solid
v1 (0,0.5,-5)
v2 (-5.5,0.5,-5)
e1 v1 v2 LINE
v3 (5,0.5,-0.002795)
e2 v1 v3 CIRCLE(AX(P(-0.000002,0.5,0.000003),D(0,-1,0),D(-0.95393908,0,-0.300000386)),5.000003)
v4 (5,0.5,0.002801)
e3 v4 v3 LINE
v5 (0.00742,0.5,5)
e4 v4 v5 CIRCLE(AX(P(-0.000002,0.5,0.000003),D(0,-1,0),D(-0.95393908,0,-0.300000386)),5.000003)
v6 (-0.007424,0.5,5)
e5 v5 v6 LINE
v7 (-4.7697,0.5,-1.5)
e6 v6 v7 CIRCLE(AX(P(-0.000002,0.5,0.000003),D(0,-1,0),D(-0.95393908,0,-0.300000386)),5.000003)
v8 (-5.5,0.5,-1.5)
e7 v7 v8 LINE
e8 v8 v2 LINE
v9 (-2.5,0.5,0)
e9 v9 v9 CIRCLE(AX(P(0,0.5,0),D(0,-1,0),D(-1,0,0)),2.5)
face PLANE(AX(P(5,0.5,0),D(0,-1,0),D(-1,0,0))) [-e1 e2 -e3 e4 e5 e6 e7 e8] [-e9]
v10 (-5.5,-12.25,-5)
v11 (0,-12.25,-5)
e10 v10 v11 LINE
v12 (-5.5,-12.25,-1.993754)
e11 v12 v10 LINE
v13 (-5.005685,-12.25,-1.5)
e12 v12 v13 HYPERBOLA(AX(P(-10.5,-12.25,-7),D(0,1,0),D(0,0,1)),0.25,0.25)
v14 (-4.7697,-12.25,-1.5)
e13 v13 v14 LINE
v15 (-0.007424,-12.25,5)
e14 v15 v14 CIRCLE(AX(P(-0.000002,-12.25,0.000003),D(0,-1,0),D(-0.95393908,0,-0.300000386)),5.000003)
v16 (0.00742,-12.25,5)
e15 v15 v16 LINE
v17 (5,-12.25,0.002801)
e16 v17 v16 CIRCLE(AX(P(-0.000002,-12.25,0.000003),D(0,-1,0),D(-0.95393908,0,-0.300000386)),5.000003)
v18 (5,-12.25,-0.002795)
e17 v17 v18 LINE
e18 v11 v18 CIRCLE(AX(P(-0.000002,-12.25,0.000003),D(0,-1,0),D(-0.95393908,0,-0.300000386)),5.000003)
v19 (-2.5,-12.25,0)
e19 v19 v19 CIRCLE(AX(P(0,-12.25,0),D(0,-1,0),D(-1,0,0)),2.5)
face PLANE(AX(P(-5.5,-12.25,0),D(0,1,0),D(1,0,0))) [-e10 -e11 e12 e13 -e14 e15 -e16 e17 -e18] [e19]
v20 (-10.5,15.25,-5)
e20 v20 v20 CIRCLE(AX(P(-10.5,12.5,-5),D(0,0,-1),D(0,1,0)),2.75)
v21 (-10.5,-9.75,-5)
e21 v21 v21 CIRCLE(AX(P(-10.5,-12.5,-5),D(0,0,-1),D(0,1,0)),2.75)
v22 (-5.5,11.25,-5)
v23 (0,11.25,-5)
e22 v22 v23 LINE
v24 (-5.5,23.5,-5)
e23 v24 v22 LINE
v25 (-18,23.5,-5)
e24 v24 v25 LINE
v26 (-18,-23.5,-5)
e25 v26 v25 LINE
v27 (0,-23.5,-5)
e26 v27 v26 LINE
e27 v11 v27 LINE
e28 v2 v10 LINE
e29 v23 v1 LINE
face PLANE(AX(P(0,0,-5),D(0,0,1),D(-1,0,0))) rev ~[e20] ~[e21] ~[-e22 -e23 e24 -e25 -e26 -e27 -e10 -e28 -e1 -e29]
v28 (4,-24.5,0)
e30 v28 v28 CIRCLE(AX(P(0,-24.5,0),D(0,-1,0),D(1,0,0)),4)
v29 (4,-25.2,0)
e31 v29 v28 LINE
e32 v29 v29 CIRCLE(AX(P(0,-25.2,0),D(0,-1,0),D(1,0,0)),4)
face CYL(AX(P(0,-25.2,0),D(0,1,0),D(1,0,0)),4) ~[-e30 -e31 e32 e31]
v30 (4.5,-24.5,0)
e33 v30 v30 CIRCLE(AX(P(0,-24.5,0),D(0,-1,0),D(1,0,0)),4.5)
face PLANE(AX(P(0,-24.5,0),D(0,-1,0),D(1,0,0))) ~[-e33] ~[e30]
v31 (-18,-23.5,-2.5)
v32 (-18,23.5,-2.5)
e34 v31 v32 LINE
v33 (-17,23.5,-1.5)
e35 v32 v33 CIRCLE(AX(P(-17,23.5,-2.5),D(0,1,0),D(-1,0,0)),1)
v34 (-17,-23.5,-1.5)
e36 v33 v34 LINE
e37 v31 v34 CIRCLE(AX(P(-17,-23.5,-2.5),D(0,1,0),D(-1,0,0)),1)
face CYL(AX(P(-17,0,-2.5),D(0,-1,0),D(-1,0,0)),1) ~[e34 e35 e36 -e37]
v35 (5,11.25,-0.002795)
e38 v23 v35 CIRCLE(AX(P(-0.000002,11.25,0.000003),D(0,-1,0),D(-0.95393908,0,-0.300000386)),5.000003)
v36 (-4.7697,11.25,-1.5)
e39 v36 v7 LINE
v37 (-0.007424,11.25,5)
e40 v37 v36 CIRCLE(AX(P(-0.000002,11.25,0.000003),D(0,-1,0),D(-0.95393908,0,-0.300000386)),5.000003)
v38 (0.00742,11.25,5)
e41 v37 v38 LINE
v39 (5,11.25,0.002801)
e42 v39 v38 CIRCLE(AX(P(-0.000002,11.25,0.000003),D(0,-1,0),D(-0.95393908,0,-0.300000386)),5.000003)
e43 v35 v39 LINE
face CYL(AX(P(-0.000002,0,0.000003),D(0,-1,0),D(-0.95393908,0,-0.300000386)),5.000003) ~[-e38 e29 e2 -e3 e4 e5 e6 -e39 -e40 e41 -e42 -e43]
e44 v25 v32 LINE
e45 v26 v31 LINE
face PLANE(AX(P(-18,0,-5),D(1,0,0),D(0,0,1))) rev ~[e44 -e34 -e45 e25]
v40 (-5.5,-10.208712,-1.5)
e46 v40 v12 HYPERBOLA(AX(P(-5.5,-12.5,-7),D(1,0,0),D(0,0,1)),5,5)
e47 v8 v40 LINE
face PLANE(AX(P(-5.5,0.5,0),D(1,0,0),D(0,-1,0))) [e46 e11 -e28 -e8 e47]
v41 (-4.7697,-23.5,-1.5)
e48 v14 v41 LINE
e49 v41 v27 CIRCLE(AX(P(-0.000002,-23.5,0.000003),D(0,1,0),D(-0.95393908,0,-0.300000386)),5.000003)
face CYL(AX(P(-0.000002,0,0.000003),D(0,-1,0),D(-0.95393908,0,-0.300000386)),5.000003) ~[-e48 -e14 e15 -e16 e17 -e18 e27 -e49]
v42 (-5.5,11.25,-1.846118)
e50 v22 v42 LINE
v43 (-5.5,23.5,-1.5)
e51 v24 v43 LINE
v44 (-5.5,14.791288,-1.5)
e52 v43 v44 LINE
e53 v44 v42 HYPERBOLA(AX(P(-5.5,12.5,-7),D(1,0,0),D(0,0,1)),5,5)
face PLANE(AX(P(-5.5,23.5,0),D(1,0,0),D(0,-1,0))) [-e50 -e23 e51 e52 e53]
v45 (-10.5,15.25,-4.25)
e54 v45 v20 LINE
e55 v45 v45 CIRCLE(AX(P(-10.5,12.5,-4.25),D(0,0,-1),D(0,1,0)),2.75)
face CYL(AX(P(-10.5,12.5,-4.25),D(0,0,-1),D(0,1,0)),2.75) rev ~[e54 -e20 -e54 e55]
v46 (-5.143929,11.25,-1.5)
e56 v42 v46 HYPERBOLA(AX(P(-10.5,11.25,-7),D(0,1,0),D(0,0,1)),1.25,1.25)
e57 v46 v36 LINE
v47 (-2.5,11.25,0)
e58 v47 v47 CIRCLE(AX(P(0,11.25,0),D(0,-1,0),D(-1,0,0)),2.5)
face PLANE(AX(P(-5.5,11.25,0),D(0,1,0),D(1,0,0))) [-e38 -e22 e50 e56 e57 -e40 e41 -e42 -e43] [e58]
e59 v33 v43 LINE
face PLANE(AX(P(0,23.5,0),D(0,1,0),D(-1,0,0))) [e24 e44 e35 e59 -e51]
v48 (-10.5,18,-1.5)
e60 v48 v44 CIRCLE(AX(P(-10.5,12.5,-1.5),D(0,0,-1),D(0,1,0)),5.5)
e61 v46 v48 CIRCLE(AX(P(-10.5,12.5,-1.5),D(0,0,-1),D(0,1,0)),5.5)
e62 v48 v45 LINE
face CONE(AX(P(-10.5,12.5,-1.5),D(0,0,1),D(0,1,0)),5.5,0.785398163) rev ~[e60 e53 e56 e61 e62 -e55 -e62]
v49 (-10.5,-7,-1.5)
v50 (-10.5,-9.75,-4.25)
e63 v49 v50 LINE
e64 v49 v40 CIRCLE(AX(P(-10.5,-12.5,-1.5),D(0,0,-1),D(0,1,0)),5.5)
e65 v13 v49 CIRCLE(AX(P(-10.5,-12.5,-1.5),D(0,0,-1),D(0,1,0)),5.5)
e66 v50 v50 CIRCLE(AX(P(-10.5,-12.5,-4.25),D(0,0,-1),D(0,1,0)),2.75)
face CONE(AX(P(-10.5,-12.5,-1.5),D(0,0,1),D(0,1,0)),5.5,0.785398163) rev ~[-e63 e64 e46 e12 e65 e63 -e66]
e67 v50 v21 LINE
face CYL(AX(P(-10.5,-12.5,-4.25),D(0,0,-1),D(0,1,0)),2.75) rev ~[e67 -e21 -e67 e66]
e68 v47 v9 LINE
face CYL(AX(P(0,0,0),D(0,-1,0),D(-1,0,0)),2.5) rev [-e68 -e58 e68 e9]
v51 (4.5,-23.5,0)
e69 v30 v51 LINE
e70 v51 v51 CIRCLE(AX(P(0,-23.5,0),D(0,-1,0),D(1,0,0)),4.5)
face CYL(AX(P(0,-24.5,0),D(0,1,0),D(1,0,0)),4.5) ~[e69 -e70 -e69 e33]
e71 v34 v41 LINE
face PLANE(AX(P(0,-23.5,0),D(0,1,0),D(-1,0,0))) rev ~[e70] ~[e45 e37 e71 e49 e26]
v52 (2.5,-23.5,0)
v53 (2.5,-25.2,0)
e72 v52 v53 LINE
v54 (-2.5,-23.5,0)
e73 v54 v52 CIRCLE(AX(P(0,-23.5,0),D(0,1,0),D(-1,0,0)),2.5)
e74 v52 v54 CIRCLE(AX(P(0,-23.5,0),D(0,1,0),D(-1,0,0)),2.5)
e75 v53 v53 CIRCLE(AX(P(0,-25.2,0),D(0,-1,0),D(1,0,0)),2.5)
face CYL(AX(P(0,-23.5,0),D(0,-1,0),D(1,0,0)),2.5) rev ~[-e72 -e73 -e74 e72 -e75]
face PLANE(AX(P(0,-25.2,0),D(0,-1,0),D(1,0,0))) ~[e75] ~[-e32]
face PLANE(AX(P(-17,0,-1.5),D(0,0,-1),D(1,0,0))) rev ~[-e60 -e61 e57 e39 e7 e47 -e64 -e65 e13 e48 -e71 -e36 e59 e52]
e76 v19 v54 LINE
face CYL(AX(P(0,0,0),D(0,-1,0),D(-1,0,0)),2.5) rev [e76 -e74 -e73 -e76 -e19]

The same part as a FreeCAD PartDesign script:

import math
import FreeCAD as App
import Part
import Sketcher
Q = App.Units.Quantity


def add_polygon(sketch, points):
    """Adds a closed chain of lines whose ends are joined by coincident constraints."""
    first, n = sketch.GeometryCount, len(points)
    for a, b in zip(points, points[1:] + points[:1]):
        sketch.addGeometry(Part.LineSegment(App.Vector(*a, 0), App.Vector(*b, 0)), False)
    for i in range(n):
        sketch.addConstraint(Sketcher.Constraint("Coincident", first + i, 2, first + (i + 1) % n, 1))

doc = App.newDocument("Part")
body = doc.addObject("PartDesign::Body", "Body")

# Sketch on XZ plane
sketch1 = body.newObject("Sketcher::SketchObject", "Sketch")
sketch1.AttachmentSupport = (doc.getObject("XZ_Plane"), [""])
sketch1.MapMode = "FlatFace"
sketch1.addGeometry(Part.LineSegment(App.Vector(0, -5, 0), App.Vector(-18, -5, 0)), False)
sketch1.addGeometry(Part.LineSegment(App.Vector(-18, -5, 0), App.Vector(-18, -2.5, 0)), False)
sketch1.addGeometry(Part.ArcOfCircle(Part.Circle(App.Vector(-17, -2.5, 0), App.Vector(0, 0, 1), 1), math.radians(90), math.radians(180)), False)
sketch1.addGeometry(Part.LineSegment(App.Vector(-17, -1.5, 0), App.Vector(-4.7697, -1.5, 0)), False)
sketch1.addGeometry(Part.ArcOfCircle(Part.Circle(App.Vector(0, 0, 0), App.Vector(0, 0, 1), 5.000004), math.radians(-90), math.radians(197.457589)), False)
sketch1.addGeometry(Part.Circle(App.Vector(0, 0, 0), App.Vector(0, 0, 1), 2.5), False)
sketch1.addConstraint(Sketcher.Constraint("Coincident", 0, 2, 1, 1))
sketch1.addConstraint(Sketcher.Constraint("Tangent", 1, 2, 2, 2))
sketch1.addConstraint(Sketcher.Constraint("Tangent", 2, 1, 3, 1))
sketch1.addConstraint(Sketcher.Constraint("Coincident", 3, 2, 4, 2))
sketch1.addConstraint(Sketcher.Constraint("Tangent", 4, 1, 0, 1))
sketch1.addConstraint(Sketcher.Constraint("Horizontal", 0))
sketch1.addConstraint(Sketcher.Constraint("Vertical", 1))
sketch1.addConstraint(Sketcher.Constraint("Horizontal", 3))
sketch1.addConstraint(Sketcher.Constraint("Coincident", 4, 3, -1, 1))
sketch1.addConstraint(Sketcher.Constraint("Coincident", 5, 3, -1, 1))
sketch1.addConstraint(Sketcher.Constraint("Diameter", 5, 5.0))
sketch1.addConstraint(Sketcher.Constraint("Radius", 2, 1.0))
sketch1.addConstraint(Sketcher.Constraint("Radius", 4, 5.0))
sketch1.addConstraint(Sketcher.Constraint("DistanceX", 0, 2, 0, 1, 18.0))
sketch1.addConstraint(Sketcher.Constraint("DistanceY", 1, 1, 1, 2, 2.5))
pad1 = body.newObject("PartDesign::Pad", "Pad")
pad1.Profile = sketch1
pad1.Length = 47
pad1.Midplane = True

# Sketch on XY plane
sketch2 = body.newObject("Sketcher::SketchObject", "Sketch001")
sketch2.AttachmentSupport = (doc.getObject("XY_Plane"), [""])
sketch2.MapMode = "FlatFace"
add_polygon(sketch2, [(10, 23.5), (-5.5, 23.5), (-5.5, 11.25), (5, 11.25), (5, 0.5), (-5.5, 0.5), (-5.5, -12.25), (5, -12.25), (5, -23.5), (10, -23.5)])  # lines 0-9
sketch2.addConstraint(Sketcher.Constraint("Horizontal", 0))
sketch2.addConstraint(Sketcher.Constraint("Vertical", 1))
sketch2.addConstraint(Sketcher.Constraint("Horizontal", 2))
sketch2.addConstraint(Sketcher.Constraint("Vertical", 3))
sketch2.addConstraint(Sketcher.Constraint("Horizontal", 4))
sketch2.addConstraint(Sketcher.Constraint("Vertical", 5))
sketch2.addConstraint(Sketcher.Constraint("Horizontal", 6))
sketch2.addConstraint(Sketcher.Constraint("Vertical", 7))
sketch2.addConstraint(Sketcher.Constraint("Horizontal", 8))
sketch2.addConstraint(Sketcher.Constraint("Vertical", 9))
sketch2.addConstraint(Sketcher.Constraint("Vertical", 1, 2, 4, 2))
sketch2.addConstraint(Sketcher.Constraint("Vertical", 3, 2, 6, 2))
sketch2.addConstraint(Sketcher.Constraint("DistanceX", 8, 1, 8, 2, 5.0))
sketch2.addConstraint(Sketcher.Constraint("DistanceY", 9, 1, 9, 2, 47.0))
sketch2.addConstraint(Sketcher.Constraint("DistanceX", 0, 2, 0, 1, 15.5))
sketch2.addConstraint(Sketcher.Constraint("DistanceX", -1, 1, 2, 2, 5.0))
sketch2.addConstraint(Sketcher.Constraint("DistanceY", 3, 2, 0, 2, 23.0))
sketch2.addConstraint(Sketcher.Constraint("DistanceY", 1, 2, 1, 1, 12.25))
sketch2.addConstraint(Sketcher.Constraint("DistanceY", 5, 2, 5, 1, 12.75))
sketch2.addConstraint(Sketcher.Constraint("DistanceY", -1, 1, 0, 2, 23.5))
pocket1 = body.newObject("PartDesign::Pocket", "Pocket")
pocket1.Profile = sketch2
pocket1.Length = 10
pocket1.Midplane = True

# Sketch on YZ plane
sketch3 = body.newObject("Sketcher::SketchObject", "Sketch002")
sketch3.AttachmentSupport = (doc.getObject("YZ_Plane"), [""])
sketch3.MapMode = "FlatFace"
sketch3.AttachmentOffset = App.Placement(App.Vector(0, 0, -10.5), App.Rotation())
add_polygon(sketch3, [(12.5, -1.5), (12.5, -5), (15.25, -5), (15.25, -4.25), (18, -1.5)])  # lines 0-4
sketch3.addGeometry(Part.LineSegment(App.Vector(12.5, -1.5, 0), App.Vector(12.5, -5, 0)), True)  # axis
sketch3.addConstraint(Sketcher.Constraint("Vertical", 0))
sketch3.addConstraint(Sketcher.Constraint("Horizontal", 1))
sketch3.addConstraint(Sketcher.Constraint("Vertical", 2))
sketch3.addConstraint(Sketcher.Constraint("Horizontal", 4))
sketch3.addConstraint(Sketcher.Constraint("Vertical", 5))
sketch3.addConstraint(Sketcher.Constraint("Coincident", 5, 1, 4, 2))
sketch3.addConstraint(Sketcher.Constraint("Horizontal", 1, 2, 5, 2))
sketch3.addConstraint(Sketcher.Constraint("Angle", 3, Q("45 deg")))
sketch3.addConstraint(Sketcher.Constraint("DistanceX", 4, 2, 4, 1, 5.5))
sketch3.addConstraint(Sketcher.Constraint("DistanceY", 0, 2, 0, 1, 3.5))
sketch3.addConstraint(Sketcher.Constraint("DistanceY", 0, 2, -1, 1, 5.0))
sketch3.addConstraint(Sketcher.Constraint("DistanceX", -1, 1, 3, 2, 18.0))
sketch3.addConstraint(Sketcher.Constraint("DistanceX", 1, 1, 1, 2, 2.75))
groove = body.newObject("PartDesign::Groove", "Groove")
groove.Profile = sketch3
groove.ReferenceAxis = (sketch3, ["Axis0"])
groove.Angle = 360

# Sketch on YZ plane
sketch4 = body.newObject("Sketcher::SketchObject", "Sketch003")
sketch4.AttachmentSupport = (doc.getObject("YZ_Plane"), [""])
sketch4.MapMode = "FlatFace"
sketch4.AttachmentOffset = App.Placement(App.Vector(0, 0, -10.5), App.Rotation())
add_polygon(sketch4, [(-12.5, -1.5), (-12.5, -5), (-9.75, -5), (-9.75, -4.25), (-7, -1.5)])  # lines 0-4
sketch4.addGeometry(Part.LineSegment(App.Vector(-12.5, -1.5, 0), App.Vector(-12.5, -5, 0)), True)  # axis
sketch4.addConstraint(Sketcher.Constraint("Vertical", 0))
sketch4.addConstraint(Sketcher.Constraint("Horizontal", 1))
sketch4.addConstraint(Sketcher.Constraint("Vertical", 2))
sketch4.addConstraint(Sketcher.Constraint("Horizontal", 4))
sketch4.addConstraint(Sketcher.Constraint("Vertical", 5))
sketch4.addConstraint(Sketcher.Constraint("Coincident", 5, 1, 4, 2))
sketch4.addConstraint(Sketcher.Constraint("Horizontal", 1, 2, 5, 2))
sketch4.addConstraint(Sketcher.Constraint("Angle", 3, Q("45 deg")))
sketch4.addConstraint(Sketcher.Constraint("DistanceX", 4, 2, 4, 1, 5.5))
sketch4.addConstraint(Sketcher.Constraint("DistanceY", 0, 2, 0, 1, 3.5))
sketch4.addConstraint(Sketcher.Constraint("DistanceY", 0, 2, -1, 1, 5.0))
sketch4.addConstraint(Sketcher.Constraint("DistanceX", 3, 2, -1, 1, 7.0))
sketch4.addConstraint(Sketcher.Constraint("DistanceX", 1, 1, 1, 2, 2.75))
groove2 = body.newObject("PartDesign::Groove", "Groove001")
groove2.Profile = sketch4
groove2.ReferenceAxis = (sketch4, ["Axis0"])
groove2.Angle = 360

# Sketch on XY plane
sketch5 = body.newObject("Sketcher::SketchObject", "Sketch004")
sketch5.AttachmentSupport = (doc.getObject("XY_Plane"), [""])
sketch5.MapMode = "FlatFace"
add_polygon(sketch5, [(4.5, -23.5), (2.5, -23.5), (2.5, -25.2), (4, -25.2), (4, -24.5), (4.5, -24.5)])  # lines 0-5
sketch5.addConstraint(Sketcher.Constraint("Horizontal", 0))
sketch5.addConstraint(Sketcher.Constraint("Vertical", 1))
sketch5.addConstraint(Sketcher.Constraint("Horizontal", 2))
sketch5.addConstraint(Sketcher.Constraint("Vertical", 3))
sketch5.addConstraint(Sketcher.Constraint("Horizontal", 4))
sketch5.addConstraint(Sketcher.Constraint("Vertical", 5))
sketch5.addConstraint(Sketcher.Constraint("DistanceX", 0, 2, 0, 1, 2.0))
sketch5.addConstraint(Sketcher.Constraint("DistanceY", 5, 1, 5, 2, 1.0))
sketch5.addConstraint(Sketcher.Constraint("DistanceX", 2, 1, 2, 2, 1.5))
sketch5.addConstraint(Sketcher.Constraint("DistanceY", 1, 2, 1, 1, 1.7))
sketch5.addConstraint(Sketcher.Constraint("DistanceX", -1, 1, 2, 2, 4.0))
sketch5.addConstraint(Sketcher.Constraint("DistanceY", 0, 2, -1, 1, 23.5))
revolution = body.newObject("PartDesign::Revolution", "Revolution")
revolution.Profile = sketch5
revolution.ReferenceAxis = (sketch5, ["V_Axis"])
revolution.Angle = 360

doc.recompute()
